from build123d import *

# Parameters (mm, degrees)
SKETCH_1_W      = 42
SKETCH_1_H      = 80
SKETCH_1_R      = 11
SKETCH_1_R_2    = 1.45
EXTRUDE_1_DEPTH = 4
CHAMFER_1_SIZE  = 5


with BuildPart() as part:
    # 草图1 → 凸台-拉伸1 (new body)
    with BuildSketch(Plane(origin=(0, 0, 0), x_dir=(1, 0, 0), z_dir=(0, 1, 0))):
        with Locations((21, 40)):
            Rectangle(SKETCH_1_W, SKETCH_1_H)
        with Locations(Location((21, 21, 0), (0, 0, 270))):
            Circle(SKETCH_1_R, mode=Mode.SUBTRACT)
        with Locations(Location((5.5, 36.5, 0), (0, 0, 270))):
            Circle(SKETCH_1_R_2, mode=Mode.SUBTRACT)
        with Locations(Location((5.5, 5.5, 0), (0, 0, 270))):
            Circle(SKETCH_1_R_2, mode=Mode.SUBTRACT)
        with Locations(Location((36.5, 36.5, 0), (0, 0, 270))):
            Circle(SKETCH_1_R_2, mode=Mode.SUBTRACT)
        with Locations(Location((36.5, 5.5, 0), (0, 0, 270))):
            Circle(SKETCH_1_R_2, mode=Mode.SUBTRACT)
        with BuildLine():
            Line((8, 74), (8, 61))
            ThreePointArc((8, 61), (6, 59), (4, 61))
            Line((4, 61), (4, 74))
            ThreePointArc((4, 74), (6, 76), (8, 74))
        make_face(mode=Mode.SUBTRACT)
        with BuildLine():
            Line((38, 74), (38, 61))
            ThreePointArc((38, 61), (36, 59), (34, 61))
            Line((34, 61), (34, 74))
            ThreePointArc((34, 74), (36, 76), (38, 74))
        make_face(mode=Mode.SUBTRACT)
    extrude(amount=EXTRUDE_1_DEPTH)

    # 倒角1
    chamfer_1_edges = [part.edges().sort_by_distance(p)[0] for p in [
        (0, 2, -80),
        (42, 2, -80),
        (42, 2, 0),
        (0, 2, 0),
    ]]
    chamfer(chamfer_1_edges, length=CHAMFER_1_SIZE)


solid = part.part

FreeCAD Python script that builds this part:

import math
import FreeCAD as App
import Part
import Sketcher

V = App.Vector
Q = App.Units.Quantity


def edges_at(feature, points):
    """Names of the edges that pass closest to the given points."""
    edges = feature.Shape.Edges
    near = lambda p: min(range(len(edges)), key=lambda i: edges[i].distToShape(Part.Vertex(*p))[0])
    return sorted({f"Edge{near(p) + 1}" for p in points})


def add_polygon(sketch, points):
    """Adds a closed chain of lines whose ends are joined by coincident constraints."""
    first, n = sketch.GeometryCount, len(points)
    for a, b in zip(points, points[1:] + points[:1]):
        sketch.addGeometry(Part.LineSegment(App.Vector(*a, 0), App.Vector(*b, 0)), False)
    for i in range(n):
        sketch.addConstraint(Sketcher.Constraint("Coincident", first + i, 2, first + (i + 1) % n, 1))

doc = App.newDocument("Part")
params = doc.addObject("Spreadsheet::Sheet", "Params")
for row, (alias, value) in enumerate([
    ("sketch1_diameter", "22 mm"),
    ("sketch1_radius", "2 mm"),
    ("sketch1_diameter2", "2.9 mm"),
    ("sketch1_width", "42 mm"),
    ("sketch1_height", "80 mm"),
    ("pad1_length", "4 mm"),
    ("chamfer_size", "5 mm"),
], start=1):
    params.set(f"A{row}", alias)
    params.set(f"B{row}", "=" + value)
    params.setAlias(f"B{row}", alias)

body = doc.addObject("PartDesign::Body", "Body")

# Sketch on XZ plane
sketch1 = body.newObject("Sketcher::SketchObject", "Sketch")
sketch1.AttachmentSupport = (doc.getObject("XZ_Plane"), [""])
sketch1.MapMode = "FlatFace"
add_polygon(sketch1, [(0, -80), (0, 0), (42, 0), (42, -80)])  # lines 0-3
sketch1.addGeometry(Part.Circle(V(5.5, -5.5, 0), V(0, 0, 1), 1.45), False)  # 4
sketch1.addGeometry(Part.Circle(V(5.5, -36.5, 0), V(0, 0, 1), 1.45), False)  # 5
sketch1.addGeometry(Part.Circle(V(21, -21, 0), V(0, 0, 1), 11), False)  # 6
sketch1.addGeometry(Part.Circle(V(36.5, -5.5, 0), V(0, 0, 1), 1.45), False)  # 7
sketch1.addGeometry(Part.Circle(V(36.5, -36.5, 0), V(0, 0, 1), 1.45), False)  # 8
sketch1.addGeometry(Part.ArcOfCircle(Part.Circle(V(6, -74, 0), V(0, 0, 1), 2), math.radians(180), math.radians(360)), False)  # 9
sketch1.addGeometry(Part.LineSegment(V(8, -74, 0), V(8, -61, 0)), False)  # 10
sketch1.addGeometry(Part.ArcOfCircle(Part.Circle(V(6, -61, 0), V(0, 0, 1), 2), math.radians(0), math.radians(180)), False)  # 11
sketch1.addGeometry(Part.LineSegment(V(4, -61, 0), V(4, -74, 0)), False)  # 12
sketch1.addGeometry(Part.ArcOfCircle(Part.Circle(V(36, -74, 0), V(0, 0, 1), 2), math.radians(180), math.radians(360)), False)  # 13
sketch1.addGeometry(Part.LineSegment(V(38, -74, 0), V(38, -61, 0)), False)  # 14
sketch1.addGeometry(Part.ArcOfCircle(Part.Circle(V(36, -61, 0), V(0, 0, 1), 2), math.radians(0), math.radians(180)), False)  # 15
sketch1.addGeometry(Part.LineSegment(V(34, -61, 0), V(34, -74, 0)), False)  # 16
sketch1.addConstraint([
    Sketcher.Constraint("Tangent", 9, 2, 10, 1),
    Sketcher.Constraint("Tangent", 10, 2, 11, 1),
    Sketcher.Constraint("Tangent", 11, 2, 12, 1),
    Sketcher.Constraint("Tangent", 12, 2, 9, 1),
    Sketcher.Constraint("Tangent", 13, 2, 14, 1),
    Sketcher.Constraint("Tangent", 14, 2, 15, 1),
    Sketcher.Constraint("Tangent", 15, 2, 16, 1),
    Sketcher.Constraint("Tangent", 16, 2, 13, 1),
    Sketcher.Constraint("Vertical", 0),
    Sketcher.Constraint("Horizontal", 1),
    Sketcher.Constraint("Vertical", 2),
    Sketcher.Constraint("Horizontal", 3),
    Sketcher.Constraint("Vertical", 10),
    Sketcher.Constraint("Vertical", 12),
    Sketcher.Constraint("Vertical", 14),
    Sketcher.Constraint("Vertical", 16),
    Sketcher.Constraint("Coincident", 0, 2, -1, 1),
    Sketcher.Constraint("Equal", 4, 5),
    Sketcher.Constraint("Equal", 5, 7),
    Sketcher.Constraint("Equal", 7, 8),
    Sketcher.Constraint("Equal", 11, 13),
    Sketcher.Constraint("Horizontal", 4, 3, 7, 3),
    Sketcher.Constraint("Horizontal", 5, 3, 8, 3),
    Sketcher.Constraint("Horizontal", 9, 3, 13, 3),
    Sketcher.Constraint("Horizontal", 11, 3, 15, 3),
    Sketcher.Constraint("Vertical", 4, 3, 5, 3),
    Sketcher.Constraint("Vertical", 7, 3, 8, 3),
    Sketcher.Constraint("Diameter", 6, Q("22 mm")),
    Sketcher.Constraint("Radius", 9, Q("2 mm")),
    Sketcher.Constraint("Diameter", 4, Q("2.9 mm")),
    Sketcher.Constraint("DistanceX", 1, 1, 1, 2, Q("42 mm")),
    Sketcher.Constraint("DistanceY", 0, 1, 0, 2, Q("80 mm")),
    Sketcher.Constraint("DistanceY", 10, 1, 10, 2, Q("13 mm")),
    Sketcher.Constraint("DistanceX", -1, 1, 6, 3, Q("21 mm")),
    Sketcher.Constraint("DistanceY", 6, 3, -1, 1, Q("21 mm")),
    Sketcher.Constraint("DistanceX", -1, 1, 9, 3, Q("6 mm")),
    Sketcher.Constraint("DistanceY", 9, 3, -1, 1, Q("74 mm")),
    Sketcher.Constraint("DistanceX", -1, 1, 13, 3, Q("36 mm")),
    Sketcher.Constraint("DistanceY", 5, 3, 4, 3, Q("31 mm")),
    Sketcher.Constraint("DistanceX", 4, 3, 7, 3, Q("31 mm")),
    Sketcher.Constraint("DistanceX", -1, 1, 4, 3, Q("5.5 mm")),
    Sketcher.Constraint("DistanceY", 4, 3, -1, 1, Q("5.5 mm")),
])
sketch1.setExpression("Constraints[31]", "Params.sketch1_diameter")
sketch1.setExpression("Constraints[32]", "Params.sketch1_radius")
sketch1.setExpression("Constraints[33]", "Params.sketch1_diameter2")
sketch1.setExpression("Constraints[34]", "Params.sketch1_width")
sketch1.setExpression("Constraints[35]", "Params.sketch1_height")
pad1 = body.newObject("PartDesign::Pad", "Pad")
pad1.Profile = sketch1
pad1.setExpression("Length", "Params.pad1_length")
pad1.Reversed = True
doc.recompute()

chamfer = body.newObject("PartDesign::Chamfer", "Chamfer")
chamfer.Base = (pad1, edges_at(pad1, [
    (0, 2, -80),
    (42, 2, -80),
    (42, 2, 0),
    (0, 2, 0),
]))
chamfer.setExpression("Size", "Params.chamfer_size")

doc.recompute()
